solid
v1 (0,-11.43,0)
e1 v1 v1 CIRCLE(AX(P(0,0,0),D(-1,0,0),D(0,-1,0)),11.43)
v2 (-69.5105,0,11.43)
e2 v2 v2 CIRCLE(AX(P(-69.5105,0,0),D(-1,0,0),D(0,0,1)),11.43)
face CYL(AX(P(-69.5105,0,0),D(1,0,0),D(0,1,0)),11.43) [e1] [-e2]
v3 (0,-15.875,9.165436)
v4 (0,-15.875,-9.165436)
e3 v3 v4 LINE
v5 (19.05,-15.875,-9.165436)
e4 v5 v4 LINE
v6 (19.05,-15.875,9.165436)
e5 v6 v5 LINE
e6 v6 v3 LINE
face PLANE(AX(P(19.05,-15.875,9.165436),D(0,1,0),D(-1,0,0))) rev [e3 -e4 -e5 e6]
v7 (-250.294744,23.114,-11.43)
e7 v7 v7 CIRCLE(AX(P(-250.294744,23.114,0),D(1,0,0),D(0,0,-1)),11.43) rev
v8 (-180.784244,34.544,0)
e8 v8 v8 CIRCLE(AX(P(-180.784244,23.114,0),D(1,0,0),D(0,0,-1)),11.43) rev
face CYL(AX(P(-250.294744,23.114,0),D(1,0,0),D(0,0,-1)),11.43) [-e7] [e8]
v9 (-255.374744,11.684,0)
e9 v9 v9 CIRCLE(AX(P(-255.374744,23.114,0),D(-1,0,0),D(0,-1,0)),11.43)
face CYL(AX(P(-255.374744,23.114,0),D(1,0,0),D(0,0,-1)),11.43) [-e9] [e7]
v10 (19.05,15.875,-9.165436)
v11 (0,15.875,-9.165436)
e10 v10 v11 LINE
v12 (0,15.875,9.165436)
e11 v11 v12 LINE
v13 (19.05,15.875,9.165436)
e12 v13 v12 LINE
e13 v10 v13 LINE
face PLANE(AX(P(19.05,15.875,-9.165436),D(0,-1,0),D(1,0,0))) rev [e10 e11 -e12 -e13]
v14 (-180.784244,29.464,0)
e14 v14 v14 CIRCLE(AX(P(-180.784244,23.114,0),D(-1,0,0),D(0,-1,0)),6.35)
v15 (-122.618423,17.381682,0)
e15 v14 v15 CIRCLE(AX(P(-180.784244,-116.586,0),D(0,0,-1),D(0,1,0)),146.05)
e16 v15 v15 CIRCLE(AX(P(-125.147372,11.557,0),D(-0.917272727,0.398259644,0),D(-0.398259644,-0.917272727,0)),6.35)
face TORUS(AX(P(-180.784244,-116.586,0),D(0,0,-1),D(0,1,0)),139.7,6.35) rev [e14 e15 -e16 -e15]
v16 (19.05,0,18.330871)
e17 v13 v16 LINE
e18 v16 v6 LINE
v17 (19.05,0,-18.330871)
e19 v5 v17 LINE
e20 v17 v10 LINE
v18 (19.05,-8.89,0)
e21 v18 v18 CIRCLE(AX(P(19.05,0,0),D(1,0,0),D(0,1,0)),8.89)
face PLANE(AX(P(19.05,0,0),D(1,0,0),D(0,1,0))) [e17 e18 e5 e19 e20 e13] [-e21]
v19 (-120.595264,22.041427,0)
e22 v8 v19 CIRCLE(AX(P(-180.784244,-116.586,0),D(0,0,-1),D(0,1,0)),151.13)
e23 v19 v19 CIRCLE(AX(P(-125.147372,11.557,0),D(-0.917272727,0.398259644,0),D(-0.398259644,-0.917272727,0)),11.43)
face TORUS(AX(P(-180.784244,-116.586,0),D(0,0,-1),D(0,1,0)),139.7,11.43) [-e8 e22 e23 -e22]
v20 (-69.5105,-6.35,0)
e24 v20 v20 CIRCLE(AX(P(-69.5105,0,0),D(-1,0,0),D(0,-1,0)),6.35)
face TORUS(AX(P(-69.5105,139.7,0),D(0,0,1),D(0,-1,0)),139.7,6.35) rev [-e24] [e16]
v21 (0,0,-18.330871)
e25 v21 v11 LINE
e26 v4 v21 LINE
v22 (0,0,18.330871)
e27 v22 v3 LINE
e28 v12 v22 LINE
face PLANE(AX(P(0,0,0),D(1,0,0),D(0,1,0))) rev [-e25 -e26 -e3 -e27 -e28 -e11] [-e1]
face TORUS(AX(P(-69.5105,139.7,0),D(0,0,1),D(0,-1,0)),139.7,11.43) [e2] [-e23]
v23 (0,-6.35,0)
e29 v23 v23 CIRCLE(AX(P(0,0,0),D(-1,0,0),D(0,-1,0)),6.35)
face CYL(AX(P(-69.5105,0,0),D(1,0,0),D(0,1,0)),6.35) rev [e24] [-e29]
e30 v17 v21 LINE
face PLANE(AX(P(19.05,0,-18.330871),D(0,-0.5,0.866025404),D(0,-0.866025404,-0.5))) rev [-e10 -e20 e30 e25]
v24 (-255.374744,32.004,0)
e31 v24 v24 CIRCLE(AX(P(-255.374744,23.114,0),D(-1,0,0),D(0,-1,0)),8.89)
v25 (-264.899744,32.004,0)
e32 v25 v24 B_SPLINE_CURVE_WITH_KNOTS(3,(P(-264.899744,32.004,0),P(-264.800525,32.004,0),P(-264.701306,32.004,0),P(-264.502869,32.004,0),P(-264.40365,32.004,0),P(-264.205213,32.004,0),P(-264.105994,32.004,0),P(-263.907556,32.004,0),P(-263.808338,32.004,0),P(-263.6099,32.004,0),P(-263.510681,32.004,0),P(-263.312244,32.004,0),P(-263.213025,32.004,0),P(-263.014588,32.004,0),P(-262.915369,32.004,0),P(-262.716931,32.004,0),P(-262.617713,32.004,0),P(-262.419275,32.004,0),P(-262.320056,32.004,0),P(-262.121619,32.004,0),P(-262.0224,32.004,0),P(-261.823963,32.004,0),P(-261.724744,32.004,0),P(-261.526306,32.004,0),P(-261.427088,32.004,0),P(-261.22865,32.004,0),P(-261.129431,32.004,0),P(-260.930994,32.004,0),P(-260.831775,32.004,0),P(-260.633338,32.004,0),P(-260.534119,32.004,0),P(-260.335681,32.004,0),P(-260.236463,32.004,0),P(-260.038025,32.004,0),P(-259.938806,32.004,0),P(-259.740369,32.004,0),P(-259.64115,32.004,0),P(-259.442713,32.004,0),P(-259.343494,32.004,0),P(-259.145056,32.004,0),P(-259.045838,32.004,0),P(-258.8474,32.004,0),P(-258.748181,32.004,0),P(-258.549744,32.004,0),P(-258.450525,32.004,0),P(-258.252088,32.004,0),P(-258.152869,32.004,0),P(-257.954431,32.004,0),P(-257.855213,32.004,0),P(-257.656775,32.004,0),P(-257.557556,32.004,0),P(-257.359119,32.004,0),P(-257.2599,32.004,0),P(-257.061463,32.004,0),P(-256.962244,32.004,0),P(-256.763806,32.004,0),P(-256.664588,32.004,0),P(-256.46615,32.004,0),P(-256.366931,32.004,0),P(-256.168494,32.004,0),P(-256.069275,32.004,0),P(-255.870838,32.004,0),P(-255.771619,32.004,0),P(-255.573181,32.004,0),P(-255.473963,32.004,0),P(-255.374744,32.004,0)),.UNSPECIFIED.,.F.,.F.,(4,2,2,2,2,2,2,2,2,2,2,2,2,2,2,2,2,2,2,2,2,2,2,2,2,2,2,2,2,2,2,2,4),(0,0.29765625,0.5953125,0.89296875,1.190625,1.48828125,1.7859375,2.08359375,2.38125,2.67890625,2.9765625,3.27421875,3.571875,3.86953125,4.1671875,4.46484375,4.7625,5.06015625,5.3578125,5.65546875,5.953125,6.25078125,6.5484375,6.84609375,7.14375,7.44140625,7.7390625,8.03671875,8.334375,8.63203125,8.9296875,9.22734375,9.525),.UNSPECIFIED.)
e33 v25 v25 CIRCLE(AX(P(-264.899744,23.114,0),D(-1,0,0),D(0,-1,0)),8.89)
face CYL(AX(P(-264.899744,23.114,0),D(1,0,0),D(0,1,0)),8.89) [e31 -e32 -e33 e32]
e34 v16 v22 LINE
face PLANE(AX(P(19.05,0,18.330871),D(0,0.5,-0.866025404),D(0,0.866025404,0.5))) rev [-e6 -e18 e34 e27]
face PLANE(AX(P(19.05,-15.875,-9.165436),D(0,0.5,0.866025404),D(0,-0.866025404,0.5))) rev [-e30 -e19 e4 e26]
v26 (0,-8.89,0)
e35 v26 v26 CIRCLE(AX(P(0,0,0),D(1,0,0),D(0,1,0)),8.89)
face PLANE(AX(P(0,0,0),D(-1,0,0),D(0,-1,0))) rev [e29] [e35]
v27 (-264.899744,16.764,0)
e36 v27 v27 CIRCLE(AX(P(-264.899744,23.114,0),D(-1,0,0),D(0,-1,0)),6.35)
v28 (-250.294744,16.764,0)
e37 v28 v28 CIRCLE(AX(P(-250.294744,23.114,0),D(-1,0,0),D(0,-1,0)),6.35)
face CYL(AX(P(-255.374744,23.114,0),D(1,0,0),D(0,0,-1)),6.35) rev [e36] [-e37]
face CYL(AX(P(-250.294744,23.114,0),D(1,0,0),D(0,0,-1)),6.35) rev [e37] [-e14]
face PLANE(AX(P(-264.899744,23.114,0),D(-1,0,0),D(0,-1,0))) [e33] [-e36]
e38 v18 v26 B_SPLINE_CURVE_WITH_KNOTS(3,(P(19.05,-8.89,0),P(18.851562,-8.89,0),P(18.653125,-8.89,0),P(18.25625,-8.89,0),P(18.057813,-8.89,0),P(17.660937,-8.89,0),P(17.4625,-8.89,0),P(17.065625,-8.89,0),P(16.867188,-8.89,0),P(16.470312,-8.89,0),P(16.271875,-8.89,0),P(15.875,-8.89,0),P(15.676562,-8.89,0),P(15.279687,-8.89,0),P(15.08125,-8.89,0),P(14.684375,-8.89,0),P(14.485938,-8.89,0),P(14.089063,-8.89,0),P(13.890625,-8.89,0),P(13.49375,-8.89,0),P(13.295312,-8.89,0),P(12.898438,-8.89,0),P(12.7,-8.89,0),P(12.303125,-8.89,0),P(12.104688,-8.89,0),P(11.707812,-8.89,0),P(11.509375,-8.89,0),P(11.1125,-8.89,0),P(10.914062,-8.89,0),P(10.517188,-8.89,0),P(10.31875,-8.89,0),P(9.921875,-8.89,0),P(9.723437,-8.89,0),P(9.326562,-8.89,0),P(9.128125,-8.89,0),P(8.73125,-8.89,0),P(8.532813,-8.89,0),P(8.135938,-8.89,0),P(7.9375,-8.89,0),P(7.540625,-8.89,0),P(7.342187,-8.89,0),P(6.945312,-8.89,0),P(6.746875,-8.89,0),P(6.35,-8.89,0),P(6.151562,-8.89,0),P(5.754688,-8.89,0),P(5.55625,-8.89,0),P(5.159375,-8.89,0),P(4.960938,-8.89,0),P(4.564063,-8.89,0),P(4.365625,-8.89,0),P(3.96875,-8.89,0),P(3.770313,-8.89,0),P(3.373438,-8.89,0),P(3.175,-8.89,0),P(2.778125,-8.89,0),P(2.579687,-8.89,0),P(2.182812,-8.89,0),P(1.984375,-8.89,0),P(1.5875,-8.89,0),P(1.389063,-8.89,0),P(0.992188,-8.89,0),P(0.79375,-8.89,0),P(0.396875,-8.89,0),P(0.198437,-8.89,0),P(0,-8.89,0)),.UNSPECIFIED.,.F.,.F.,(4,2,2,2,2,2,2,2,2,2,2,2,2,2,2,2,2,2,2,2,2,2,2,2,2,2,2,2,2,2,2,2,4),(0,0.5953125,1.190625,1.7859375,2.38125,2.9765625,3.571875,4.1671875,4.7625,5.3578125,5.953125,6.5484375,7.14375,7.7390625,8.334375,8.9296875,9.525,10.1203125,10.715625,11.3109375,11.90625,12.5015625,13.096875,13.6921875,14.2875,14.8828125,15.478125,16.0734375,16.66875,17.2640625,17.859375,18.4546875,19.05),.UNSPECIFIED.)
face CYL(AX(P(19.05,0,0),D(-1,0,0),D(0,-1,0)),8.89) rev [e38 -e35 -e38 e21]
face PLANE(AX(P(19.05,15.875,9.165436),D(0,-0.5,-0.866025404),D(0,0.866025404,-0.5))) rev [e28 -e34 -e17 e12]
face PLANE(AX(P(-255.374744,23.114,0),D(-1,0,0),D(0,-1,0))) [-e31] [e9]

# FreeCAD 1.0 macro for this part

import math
import FreeCAD as App
import Part
import Sketcher
from FreeCAD import Vector
Q = App.Units.Quantity


def add_polygon(sketch, points):
    """Adds a closed chain of lines whose ends are joined by coincident constraints."""
    first, n = sketch.GeometryCount, len(points)
    for a, b in zip(points, points[1:] + points[:1]):
        sketch.addGeometry(Part.LineSegment(App.Vector(*a, 0), App.Vector(*b, 0)), False)
    for i in range(n):
        sketch.addConstraint(Sketcher.Constraint("Coincident", first + i, 2, first + (i + 1) % n, 1))

doc = App.newDocument("Part")
body = doc.addObject("PartDesign::Body", "Body")

# Sketch on YZ plane
sketch1 = doc.addObject("Sketcher::SketchObject", "Sketch")
body.addObject(sketch1)
sketch1.AttachmentSupport = (doc.YZ_Plane, [""])
sketch1.MapMode = "FlatFace"
sketch1.AttachmentOffset = App.Placement(Vector(0, 0, -255.374744), App.Rotation())
sketch1.addGeometry(Part.Circle(Vector(23.114, 0, 0), Vector(0, 0, 1), 11.43), False)
sketch1.addGeometry(Part.Circle(Vector(23.114, 0, 0), Vector(0, 0, 1), 6.35), False)
sketch1.addConstraint(Sketcher.Constraint("Coincident", 1, 3, 0, 3))
sketch1.addConstraint(Sketcher.Constraint("PointOnObject", 0, 3, -1))
sketch1.addConstraint(Sketcher.Constraint("Diameter", 0, Q("0.9 in")))
sketch1.addConstraint(Sketcher.Constraint("Diameter", 1, Q("0.5 in")))
sketch1.addConstraint(Sketcher.Constraint("DistanceX", -1, 1, 0, 3, Q("0.91 in")))

# Sketch on XY plane
sketch2 = doc.addObject("Sketcher::SketchObject", "Sketch001")
body.addObject(sketch2)
sketch2.AttachmentSupport = (doc.XY_Plane, [""])
sketch2.MapMode = "FlatFace"
sketch2.addGeometry(Part.LineSegment(Vector(-255.374744, 23.114, 0), Vector(-250.294744, 23.114, 0)), False)
sketch2.addGeometry(Part.LineSegment(Vector(-250.294744, 23.114, 0), Vector(-180.784244, 23.114, 0)), False)
sketch2.addGeometry(Part.ArcOfCircle(Part.Circle(Vector(-180.784244, -116.586, 0), Vector(0, 0, 1), 139.7), math.radians(66.530575), math.radians(90)), False)
sketch2.addGeometry(Part.ArcOfCircle(Part.Circle(Vector(-69.5105, 139.7, 0), Vector(0, 0, 1), 139.7), math.radians(-113.469425), math.radians(-90)), False)
sketch2.addGeometry(Part.LineSegment(Vector(-69.5105, 0, 0), Vector(0, 0, 0)), False)
sketch2.addConstraint(Sketcher.Constraint("Coincident", 0, 2, 1, 1))
sketch2.addConstraint(Sketcher.Constraint("Tangent", 1, 2, 2, 2))
sketch2.addConstraint(Sketcher.Constraint("Tangent", 2, 1, 3, 1))
sketch2.addConstraint(Sketcher.Constraint("Tangent", 3, 2, 4, 1))
sketch2.addConstraint(Sketcher.Constraint("Horizontal", 0))
sketch2.addConstraint(Sketcher.Constraint("Horizontal", 1))
sketch2.addConstraint(Sketcher.Constraint("Horizontal", 4))
sketch2.addConstraint(Sketcher.Constraint("Coincident", 4, 2, -1, 1))
sketch2.addConstraint(Sketcher.Constraint("Equal", 2, 3))
sketch2.addConstraint(Sketcher.Constraint("Equal", 1, 4))
sketch2.addConstraint(Sketcher.Constraint("Radius", 2, Q("5.5 in")))
sketch2.addConstraint(Sketcher.Constraint("DistanceX", 0, 1, 0, 2, Q("0.2 in")))
sketch2.addConstraint(Sketcher.Constraint("DistanceY", 2, 3, -1, 1, Q("4.59 in")))
sketch2.addConstraint(Sketcher.Constraint("DistanceX", 1, 1, 1, 2, 69.5105))
doc.recompute()

additivepipe = doc.addObject("PartDesign::AdditivePipe", "AdditivePipe")
body.addObject(additivepipe)
additivepipe.Profile = sketch1
additivepipe.Spine = (sketch2, ["Edge1", "Edge2", "Edge3", "Edge4", "Edge5"])

# Sketch on YZ plane
sketch3 = doc.addObject("Sketcher::SketchObject", "Sketch002")
body.addObject(sketch3)
sketch3.AttachmentSupport = (doc.YZ_Plane, [""])
sketch3.MapMode = "FlatFace"
add_polygon(sketch3, [(15.875, -9.165436), (15.875, 9.165436), (0, 18.330871), (-15.875, 9.165436), (-15.875, -9.165436), (0, -18.330871)])  # lines 0-5
sketch3.addGeometry(Part.Circle(Vector(0, 0, 0), Vector(0, 0, 1), 8.89), False)  # 6
sketch3.addConstraint(Sketcher.Constraint("Vertical", 0))
sketch3.addConstraint(Sketcher.Constraint("Vertical", 3))
sketch3.addConstraint(Sketcher.Constraint("Coincident", 6, 3, -1, 1))
sketch3.addConstraint(Sketcher.Constraint("Symmetric", 0, 2, 3, 2, -1, 1))
sketch3.addConstraint(Sketcher.Constraint("Symmetric", 1, 2, 4, 2, -1, 1))
sketch3.addConstraint(Sketcher.Constraint("PointOnObject", 1, 2, -2))
sketch3.addConstraint(Sketcher.Constraint("Parallel", 2, 5))
sketch3.addConstraint(Sketcher.Constraint("Horizontal", 0, 2, 2, 2))
sketch3.addConstraint(Sketcher.Constraint("Diameter", 6, Q("0.7 in")))
sketch3.addConstraint(Sketcher.Constraint("Angle", 1, Q("150 deg")))
sketch3.addConstraint(Sketcher.Constraint("DistanceX", 2, 2, 0, 2, Q("1.25 in")))
sketch3.addConstraint(Sketcher.Constraint("DistanceY", 0, 1, 0, 2, 18.330871))
pad1 = doc.addObject("PartDesign::Pad", "Pad")
body.addObject(pad1)
pad1.Profile = sketch3
pad1.Length = Q("0.75 in")

# Sketch on YZ plane
sketch4 = doc.addObject("Sketcher::SketchObject", "Sketch003")
body.addObject(sketch4)
sketch4.AttachmentSupport = (doc.YZ_Plane, [""])
sketch4.MapMode = "FlatFace"
sketch4.AttachmentOffset = App.Placement(Vector(0, 0, -255.374744), App.Rotation())
sketch4.addGeometry(Part.Circle(Vector(23.114, 0, 0), Vector(0, 0, 1), 8.89), False)
sketch4.addGeometry(Part.Circle(Vector(23.114, 0, 0), Vector(0, 0, 1), 6.35), False)
sketch4.addConstraint(Sketcher.Constraint("Coincident", 1, 3, 0, 3))
sketch4.addConstraint(Sketcher.Constraint("PointOnObject", 0, 3, -1))
sketch4.addConstraint(Sketcher.Constraint("Diameter", 0, Q("0.7 in")))
sketch4.addConstraint(Sketcher.Constraint("Diameter", 1, Q("0.5 in")))
sketch4.addConstraint(Sketcher.Constraint("DistanceX", -1, 1, 0, 3, Q("0.91 in")))
pad2 = doc.addObject("PartDesign::Pad", "Pad001")
body.addObject(pad2)
pad2.Profile = sketch4
pad2.Length = Q("0.375 in")
pad2.Reversed = True

doc.recompute()
